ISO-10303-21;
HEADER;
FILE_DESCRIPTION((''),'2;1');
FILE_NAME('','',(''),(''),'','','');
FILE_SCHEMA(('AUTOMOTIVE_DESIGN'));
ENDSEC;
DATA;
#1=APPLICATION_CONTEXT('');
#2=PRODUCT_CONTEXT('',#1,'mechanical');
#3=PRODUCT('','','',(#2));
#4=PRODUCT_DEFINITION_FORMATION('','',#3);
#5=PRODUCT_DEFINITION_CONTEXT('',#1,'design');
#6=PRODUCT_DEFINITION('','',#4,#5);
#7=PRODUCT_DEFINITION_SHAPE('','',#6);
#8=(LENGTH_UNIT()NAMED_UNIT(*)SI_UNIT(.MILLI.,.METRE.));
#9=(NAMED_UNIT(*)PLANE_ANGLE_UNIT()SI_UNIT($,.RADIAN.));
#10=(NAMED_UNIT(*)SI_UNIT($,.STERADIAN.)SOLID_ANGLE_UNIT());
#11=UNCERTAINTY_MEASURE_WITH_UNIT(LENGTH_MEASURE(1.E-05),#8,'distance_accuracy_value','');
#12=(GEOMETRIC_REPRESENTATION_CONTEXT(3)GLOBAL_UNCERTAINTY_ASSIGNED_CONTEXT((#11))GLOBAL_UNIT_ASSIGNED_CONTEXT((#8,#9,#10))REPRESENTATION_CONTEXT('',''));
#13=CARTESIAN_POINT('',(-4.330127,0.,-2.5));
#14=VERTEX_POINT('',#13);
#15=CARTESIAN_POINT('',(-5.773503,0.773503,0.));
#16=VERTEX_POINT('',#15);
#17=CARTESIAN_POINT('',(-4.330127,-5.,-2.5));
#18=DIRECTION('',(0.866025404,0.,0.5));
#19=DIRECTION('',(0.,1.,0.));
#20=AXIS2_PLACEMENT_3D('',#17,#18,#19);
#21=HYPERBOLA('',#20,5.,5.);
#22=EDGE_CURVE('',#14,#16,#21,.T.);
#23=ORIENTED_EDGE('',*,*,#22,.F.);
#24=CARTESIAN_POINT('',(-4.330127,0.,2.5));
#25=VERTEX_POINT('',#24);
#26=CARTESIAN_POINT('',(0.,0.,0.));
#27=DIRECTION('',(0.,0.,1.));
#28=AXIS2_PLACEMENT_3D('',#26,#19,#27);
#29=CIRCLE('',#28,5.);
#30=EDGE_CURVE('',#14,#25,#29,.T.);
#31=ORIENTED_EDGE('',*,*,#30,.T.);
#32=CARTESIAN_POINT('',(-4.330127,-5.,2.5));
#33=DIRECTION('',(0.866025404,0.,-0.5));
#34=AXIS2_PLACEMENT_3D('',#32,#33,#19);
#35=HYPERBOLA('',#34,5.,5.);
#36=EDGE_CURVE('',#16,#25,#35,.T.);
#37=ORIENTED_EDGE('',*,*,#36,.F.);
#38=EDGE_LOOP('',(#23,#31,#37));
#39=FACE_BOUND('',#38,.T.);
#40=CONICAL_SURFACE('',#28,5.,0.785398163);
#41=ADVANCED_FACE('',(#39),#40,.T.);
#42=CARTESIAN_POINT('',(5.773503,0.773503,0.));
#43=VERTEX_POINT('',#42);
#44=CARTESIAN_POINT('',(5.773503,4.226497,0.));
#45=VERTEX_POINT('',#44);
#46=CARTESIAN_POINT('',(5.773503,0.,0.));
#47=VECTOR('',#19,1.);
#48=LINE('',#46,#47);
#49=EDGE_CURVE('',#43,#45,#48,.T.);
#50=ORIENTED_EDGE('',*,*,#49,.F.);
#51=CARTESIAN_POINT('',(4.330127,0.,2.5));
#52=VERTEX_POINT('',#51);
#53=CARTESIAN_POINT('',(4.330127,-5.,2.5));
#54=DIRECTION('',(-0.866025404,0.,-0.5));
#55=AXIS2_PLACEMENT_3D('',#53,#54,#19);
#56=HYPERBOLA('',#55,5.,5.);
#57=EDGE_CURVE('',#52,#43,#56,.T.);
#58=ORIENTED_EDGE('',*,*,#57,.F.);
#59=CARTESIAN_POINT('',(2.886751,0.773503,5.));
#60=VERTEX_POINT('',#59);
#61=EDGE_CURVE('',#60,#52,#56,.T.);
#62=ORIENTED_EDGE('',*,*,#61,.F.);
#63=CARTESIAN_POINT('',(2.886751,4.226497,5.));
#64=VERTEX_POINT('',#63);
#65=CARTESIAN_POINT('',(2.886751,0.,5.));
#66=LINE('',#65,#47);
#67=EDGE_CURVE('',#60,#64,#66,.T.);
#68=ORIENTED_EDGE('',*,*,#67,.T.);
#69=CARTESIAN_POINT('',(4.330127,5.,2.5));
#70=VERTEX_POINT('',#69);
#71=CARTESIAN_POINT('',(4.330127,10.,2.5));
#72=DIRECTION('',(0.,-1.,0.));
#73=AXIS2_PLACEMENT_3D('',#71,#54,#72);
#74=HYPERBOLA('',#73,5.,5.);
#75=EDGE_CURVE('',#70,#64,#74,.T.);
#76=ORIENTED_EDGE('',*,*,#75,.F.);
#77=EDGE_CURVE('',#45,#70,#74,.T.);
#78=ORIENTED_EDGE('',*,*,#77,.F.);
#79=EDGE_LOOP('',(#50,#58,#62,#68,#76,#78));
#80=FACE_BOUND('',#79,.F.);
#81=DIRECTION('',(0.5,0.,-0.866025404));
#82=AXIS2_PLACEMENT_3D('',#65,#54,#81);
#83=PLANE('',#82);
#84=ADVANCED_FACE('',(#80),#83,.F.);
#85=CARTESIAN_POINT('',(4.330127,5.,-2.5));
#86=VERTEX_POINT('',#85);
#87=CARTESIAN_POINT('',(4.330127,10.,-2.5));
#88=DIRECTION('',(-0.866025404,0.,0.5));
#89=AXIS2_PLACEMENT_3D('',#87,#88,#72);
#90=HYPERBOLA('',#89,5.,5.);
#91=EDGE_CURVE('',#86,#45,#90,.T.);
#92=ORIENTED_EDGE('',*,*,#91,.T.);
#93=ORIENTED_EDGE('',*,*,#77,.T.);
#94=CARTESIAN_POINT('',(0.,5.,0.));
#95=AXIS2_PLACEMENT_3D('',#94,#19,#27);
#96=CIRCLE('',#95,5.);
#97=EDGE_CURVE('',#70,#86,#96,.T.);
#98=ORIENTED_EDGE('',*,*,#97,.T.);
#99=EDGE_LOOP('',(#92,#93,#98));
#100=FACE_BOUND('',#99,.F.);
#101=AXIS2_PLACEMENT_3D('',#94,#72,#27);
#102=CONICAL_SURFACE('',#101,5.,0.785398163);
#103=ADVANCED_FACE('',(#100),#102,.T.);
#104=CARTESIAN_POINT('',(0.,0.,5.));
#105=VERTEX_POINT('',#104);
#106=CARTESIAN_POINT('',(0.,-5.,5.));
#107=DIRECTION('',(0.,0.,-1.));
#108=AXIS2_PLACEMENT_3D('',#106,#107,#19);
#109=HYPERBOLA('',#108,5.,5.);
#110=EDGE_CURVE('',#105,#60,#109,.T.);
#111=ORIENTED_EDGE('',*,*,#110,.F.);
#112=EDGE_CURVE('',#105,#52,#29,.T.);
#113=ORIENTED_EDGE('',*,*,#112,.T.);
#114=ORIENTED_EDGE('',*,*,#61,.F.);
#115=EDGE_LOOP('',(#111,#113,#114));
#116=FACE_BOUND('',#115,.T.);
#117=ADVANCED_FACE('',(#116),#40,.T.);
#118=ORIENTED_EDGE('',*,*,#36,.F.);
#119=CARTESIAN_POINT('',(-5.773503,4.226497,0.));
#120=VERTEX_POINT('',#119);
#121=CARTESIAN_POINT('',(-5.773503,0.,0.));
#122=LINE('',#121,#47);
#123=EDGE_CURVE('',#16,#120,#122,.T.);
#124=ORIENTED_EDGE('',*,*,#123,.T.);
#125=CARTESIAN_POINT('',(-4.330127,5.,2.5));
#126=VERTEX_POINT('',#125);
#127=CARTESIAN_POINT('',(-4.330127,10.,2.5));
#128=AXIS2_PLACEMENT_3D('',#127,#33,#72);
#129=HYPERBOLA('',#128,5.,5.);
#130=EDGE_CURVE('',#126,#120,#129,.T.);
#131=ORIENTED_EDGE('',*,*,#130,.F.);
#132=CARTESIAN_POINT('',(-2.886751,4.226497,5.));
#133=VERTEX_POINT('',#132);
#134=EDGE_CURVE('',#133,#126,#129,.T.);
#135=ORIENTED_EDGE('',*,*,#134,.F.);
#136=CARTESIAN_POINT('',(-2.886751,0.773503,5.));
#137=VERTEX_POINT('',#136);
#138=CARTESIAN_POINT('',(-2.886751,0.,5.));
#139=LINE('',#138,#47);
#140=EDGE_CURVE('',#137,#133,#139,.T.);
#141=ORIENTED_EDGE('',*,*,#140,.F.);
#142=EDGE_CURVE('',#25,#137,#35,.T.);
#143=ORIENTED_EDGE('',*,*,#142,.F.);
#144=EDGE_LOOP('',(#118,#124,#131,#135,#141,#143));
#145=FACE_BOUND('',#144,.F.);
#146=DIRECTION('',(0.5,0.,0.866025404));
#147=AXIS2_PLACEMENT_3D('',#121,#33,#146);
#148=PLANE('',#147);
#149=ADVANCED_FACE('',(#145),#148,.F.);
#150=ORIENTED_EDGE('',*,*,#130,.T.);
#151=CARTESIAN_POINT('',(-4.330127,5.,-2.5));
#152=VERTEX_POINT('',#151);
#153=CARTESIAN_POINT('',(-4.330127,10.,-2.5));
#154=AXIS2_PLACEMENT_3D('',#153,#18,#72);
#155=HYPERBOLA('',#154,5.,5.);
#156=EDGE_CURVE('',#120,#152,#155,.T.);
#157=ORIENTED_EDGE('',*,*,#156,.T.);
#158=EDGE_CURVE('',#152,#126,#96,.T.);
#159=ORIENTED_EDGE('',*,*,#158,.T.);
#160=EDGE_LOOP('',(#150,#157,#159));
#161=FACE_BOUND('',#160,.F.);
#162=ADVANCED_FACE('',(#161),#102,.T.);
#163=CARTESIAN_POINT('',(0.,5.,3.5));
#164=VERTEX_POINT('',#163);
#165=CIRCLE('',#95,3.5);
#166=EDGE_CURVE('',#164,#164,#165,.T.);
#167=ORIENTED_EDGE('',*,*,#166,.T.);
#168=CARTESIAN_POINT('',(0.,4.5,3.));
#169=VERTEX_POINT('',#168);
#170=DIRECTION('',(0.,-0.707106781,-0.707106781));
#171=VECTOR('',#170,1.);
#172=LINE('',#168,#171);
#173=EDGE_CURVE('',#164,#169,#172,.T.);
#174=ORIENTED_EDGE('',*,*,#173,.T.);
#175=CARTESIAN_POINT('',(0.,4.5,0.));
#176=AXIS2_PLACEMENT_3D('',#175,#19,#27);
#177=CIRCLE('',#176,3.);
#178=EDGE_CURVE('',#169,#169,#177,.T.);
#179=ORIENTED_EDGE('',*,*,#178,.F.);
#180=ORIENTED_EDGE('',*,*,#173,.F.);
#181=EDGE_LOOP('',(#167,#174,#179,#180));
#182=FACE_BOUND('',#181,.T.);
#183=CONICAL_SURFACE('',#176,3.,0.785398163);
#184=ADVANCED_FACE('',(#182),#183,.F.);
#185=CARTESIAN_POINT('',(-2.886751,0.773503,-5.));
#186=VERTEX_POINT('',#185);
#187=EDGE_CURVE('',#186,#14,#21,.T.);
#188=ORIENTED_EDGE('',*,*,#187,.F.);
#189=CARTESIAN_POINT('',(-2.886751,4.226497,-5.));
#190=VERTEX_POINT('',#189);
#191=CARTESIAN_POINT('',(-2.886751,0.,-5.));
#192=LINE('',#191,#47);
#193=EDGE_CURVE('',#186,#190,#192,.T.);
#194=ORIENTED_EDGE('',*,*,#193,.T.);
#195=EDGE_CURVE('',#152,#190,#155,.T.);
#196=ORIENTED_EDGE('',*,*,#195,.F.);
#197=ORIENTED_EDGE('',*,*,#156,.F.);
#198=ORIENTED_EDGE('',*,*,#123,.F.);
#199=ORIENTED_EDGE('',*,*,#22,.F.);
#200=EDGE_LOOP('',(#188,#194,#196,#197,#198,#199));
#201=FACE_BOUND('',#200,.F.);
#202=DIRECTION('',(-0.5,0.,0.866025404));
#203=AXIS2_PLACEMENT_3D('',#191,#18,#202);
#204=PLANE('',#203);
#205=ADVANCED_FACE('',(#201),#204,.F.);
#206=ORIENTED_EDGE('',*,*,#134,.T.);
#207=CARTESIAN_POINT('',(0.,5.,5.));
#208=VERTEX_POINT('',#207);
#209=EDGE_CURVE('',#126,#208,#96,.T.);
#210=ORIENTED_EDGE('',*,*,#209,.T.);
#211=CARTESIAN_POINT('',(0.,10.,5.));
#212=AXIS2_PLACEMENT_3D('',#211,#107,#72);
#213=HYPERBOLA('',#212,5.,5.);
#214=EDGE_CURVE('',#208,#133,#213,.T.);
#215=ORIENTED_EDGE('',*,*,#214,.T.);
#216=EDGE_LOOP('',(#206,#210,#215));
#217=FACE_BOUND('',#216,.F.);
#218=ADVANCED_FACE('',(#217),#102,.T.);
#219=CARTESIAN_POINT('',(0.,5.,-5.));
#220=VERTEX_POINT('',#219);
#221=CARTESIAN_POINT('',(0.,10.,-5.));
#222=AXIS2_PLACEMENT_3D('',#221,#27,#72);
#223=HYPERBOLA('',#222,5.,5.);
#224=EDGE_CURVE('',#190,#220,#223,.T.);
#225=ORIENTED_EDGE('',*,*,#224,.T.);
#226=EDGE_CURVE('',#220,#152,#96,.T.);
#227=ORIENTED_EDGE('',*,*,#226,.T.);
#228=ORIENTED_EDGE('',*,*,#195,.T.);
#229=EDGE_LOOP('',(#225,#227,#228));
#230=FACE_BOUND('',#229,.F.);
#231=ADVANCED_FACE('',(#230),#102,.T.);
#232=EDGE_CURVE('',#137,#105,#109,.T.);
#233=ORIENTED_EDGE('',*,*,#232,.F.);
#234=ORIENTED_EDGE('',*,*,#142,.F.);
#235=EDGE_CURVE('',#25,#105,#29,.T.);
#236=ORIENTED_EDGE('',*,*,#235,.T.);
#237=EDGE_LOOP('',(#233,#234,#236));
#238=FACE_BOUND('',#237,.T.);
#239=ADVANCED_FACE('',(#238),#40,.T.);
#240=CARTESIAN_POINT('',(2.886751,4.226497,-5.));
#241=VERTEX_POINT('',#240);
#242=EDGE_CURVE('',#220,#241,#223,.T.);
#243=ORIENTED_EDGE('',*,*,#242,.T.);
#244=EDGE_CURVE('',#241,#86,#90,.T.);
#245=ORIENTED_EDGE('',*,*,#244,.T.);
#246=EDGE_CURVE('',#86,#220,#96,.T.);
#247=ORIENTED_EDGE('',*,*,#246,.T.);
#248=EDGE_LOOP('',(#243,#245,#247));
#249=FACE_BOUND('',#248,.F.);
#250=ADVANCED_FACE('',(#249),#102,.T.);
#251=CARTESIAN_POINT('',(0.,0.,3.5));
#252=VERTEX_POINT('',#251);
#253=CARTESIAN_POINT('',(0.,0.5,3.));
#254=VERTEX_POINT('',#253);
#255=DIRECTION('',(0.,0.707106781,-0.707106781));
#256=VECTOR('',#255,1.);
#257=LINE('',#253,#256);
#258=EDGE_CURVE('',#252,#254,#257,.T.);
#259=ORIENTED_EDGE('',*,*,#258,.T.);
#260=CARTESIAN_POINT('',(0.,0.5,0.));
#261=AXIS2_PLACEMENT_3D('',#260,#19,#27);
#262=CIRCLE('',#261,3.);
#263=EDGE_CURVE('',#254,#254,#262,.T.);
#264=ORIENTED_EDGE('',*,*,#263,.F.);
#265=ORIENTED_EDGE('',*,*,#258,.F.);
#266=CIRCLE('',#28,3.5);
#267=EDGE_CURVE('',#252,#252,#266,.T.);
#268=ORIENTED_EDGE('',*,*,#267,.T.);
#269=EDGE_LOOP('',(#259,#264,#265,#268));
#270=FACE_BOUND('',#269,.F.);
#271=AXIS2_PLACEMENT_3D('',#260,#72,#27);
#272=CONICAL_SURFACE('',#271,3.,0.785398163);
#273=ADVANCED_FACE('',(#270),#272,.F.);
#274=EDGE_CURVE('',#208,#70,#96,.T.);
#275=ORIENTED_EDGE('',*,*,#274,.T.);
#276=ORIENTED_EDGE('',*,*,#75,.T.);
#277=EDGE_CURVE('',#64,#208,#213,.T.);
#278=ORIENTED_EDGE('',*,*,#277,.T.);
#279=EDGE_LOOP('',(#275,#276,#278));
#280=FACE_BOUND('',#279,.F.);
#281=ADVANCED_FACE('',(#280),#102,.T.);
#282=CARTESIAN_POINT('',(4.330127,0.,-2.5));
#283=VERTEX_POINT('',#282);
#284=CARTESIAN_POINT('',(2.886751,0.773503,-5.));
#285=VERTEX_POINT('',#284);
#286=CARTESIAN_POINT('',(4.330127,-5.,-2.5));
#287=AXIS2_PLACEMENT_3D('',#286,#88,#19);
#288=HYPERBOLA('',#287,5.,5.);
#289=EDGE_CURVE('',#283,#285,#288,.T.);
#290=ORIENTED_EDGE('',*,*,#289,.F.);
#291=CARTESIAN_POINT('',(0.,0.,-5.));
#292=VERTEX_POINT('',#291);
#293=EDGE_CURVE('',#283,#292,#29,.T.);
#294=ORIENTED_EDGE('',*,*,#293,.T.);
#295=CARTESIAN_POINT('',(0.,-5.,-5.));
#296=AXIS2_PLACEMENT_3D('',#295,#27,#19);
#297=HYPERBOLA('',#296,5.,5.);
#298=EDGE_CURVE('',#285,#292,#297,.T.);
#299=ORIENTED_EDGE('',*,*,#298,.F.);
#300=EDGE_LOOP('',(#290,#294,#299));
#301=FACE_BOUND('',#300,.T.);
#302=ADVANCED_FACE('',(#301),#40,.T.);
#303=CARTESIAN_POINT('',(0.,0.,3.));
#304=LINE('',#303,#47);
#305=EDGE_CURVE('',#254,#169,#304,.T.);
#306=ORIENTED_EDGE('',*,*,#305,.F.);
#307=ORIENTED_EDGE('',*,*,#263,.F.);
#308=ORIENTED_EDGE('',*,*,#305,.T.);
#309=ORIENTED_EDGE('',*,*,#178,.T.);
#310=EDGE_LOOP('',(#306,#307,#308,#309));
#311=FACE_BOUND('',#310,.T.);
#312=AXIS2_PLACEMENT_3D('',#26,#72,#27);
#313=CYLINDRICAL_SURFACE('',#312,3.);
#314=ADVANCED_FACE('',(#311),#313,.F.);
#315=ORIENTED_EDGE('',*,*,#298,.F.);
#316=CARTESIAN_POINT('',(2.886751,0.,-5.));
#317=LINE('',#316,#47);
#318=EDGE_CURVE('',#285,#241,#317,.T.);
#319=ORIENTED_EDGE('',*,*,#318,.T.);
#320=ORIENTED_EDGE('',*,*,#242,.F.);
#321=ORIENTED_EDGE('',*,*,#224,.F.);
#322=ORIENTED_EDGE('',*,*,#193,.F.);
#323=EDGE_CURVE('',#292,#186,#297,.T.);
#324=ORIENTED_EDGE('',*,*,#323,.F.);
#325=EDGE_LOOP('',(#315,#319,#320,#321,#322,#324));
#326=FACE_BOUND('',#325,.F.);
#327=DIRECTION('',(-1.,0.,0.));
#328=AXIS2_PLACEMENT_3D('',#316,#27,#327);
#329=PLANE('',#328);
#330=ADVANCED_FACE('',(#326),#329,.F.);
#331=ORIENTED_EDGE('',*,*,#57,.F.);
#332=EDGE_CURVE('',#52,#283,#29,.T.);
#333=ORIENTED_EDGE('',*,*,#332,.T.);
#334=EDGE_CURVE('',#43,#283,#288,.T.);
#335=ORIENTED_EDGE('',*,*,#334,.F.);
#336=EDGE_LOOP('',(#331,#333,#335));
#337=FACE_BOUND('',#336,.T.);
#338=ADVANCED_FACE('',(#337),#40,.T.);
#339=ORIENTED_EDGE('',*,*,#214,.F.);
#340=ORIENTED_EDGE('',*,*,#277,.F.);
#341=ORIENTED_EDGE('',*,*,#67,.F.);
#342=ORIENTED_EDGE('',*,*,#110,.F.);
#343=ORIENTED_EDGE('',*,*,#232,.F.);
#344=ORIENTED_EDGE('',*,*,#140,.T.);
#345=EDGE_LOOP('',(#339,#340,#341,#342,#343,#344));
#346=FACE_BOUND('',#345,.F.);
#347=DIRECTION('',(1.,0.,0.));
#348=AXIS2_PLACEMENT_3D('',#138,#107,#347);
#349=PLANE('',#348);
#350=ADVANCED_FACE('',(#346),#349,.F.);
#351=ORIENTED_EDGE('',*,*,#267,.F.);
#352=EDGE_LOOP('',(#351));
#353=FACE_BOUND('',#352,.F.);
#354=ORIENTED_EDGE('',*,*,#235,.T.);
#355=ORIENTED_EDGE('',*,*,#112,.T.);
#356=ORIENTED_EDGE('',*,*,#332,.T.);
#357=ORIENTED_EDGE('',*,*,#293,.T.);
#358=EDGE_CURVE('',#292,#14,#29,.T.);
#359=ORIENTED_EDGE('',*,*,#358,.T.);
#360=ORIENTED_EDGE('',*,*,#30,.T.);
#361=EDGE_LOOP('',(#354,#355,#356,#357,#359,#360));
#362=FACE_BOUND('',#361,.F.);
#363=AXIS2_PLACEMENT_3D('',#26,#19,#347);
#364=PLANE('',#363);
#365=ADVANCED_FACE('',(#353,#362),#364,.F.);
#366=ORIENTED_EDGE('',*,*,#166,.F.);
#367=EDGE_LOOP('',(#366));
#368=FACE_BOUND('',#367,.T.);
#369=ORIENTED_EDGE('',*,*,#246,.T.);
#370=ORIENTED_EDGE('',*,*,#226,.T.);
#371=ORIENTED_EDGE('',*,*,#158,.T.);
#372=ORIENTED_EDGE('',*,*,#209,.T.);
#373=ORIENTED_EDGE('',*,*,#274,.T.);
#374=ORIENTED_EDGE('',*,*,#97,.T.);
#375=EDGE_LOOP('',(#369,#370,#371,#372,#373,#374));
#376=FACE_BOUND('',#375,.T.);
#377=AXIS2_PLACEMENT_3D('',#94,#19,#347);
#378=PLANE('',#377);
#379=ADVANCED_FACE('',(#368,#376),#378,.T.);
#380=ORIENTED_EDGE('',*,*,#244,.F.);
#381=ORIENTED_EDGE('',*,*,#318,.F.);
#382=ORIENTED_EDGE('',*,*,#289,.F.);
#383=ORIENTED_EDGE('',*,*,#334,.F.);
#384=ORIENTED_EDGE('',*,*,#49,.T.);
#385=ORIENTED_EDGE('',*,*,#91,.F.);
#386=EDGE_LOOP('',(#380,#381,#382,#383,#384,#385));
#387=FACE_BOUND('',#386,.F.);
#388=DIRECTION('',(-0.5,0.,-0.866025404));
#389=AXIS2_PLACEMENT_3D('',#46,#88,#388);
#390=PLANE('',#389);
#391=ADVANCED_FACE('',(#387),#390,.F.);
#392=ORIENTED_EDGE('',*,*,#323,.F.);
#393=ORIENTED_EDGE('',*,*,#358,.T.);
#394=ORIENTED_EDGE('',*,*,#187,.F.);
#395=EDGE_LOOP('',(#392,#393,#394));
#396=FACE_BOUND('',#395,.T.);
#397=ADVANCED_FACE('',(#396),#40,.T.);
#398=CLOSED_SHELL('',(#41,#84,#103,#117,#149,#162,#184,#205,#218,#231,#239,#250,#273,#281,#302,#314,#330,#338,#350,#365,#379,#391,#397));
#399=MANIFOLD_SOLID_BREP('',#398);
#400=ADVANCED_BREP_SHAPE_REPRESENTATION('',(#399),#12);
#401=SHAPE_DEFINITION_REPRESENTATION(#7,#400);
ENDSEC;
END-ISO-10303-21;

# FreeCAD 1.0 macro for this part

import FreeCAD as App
import Part
import Sketcher
from FreeCAD import Vector
Q = App.Units.Quantity


def edges_at(feature, points):
    """Names of the edges that pass closest to the given points."""
    edges = feature.Shape.Edges
    near = lambda p: min(range(len(edges)), key=lambda i: edges[i].distToShape(Part.Vertex(*p))[0])
    return sorted({f"Edge{near(p) + 1}" for p in points})


def add_polygon(sketch, points):
    """Adds a closed chain of lines whose ends are joined by coincident constraints."""
    first, n = sketch.GeometryCount, len(points)
    for a, b in zip(points, points[1:] + points[:1]):
        sketch.addGeometry(Part.LineSegment(App.Vector(*a, 0), App.Vector(*b, 0)), False)
    for i in range(n):
        sketch.addConstraint(Sketcher.Constraint("Coincident", first + i, 2, first + (i + 1) % n, 1))

doc = App.newDocument("Part")
body = doc.addObject("PartDesign::Body", "Body")

sketch1 = doc.addObject("Sketcher::SketchObject", "Sketch")
body.addObject(sketch1)
sketch1.AttachmentSupport = (doc.XZ_Plane, [""])
sketch1.MapMode = "FlatFace"
add_polygon(sketch1, [(5.8, 0), (2.9, -5), (-2.9, -5), (-5.8, 0), (-2.9, 5), (2.9, 5)])
sketch1.addGeometry(Part.Circle(Vector(0, 0, 0), Vector(0, 0, 1), 3), False)
sketch1.addConstraint(Sketcher.Constraint("Horizontal", 1))
sketch1.addConstraint(Sketcher.Constraint("Horizontal", 4))
sketch1.addConstraint(Sketcher.Constraint("Coincident", 6, 3, -1, 1))
sketch1.addConstraint(Sketcher.Constraint("Symmetric", 0, 2, 3, 2, -1, 1))
sketch1.addConstraint(Sketcher.Constraint("Symmetric", 2, 2, 5, 2, -1, 1))
sketch1.addConstraint(Sketcher.Constraint("PointOnObject", 2, 2, -1))
sketch1.addConstraint(Sketcher.Constraint("Parallel", 2, 5))
sketch1.addConstraint(Sketcher.Constraint("Vertical", 1, 2, 3, 2))
sketch1.addConstraint(Sketcher.Constraint("Diameter", 6, 6.0))
sketch1.addConstraint(Sketcher.Constraint("Angle", 0, Q("-120 deg")))
sketch1.addConstraint(Sketcher.Constraint("DistanceY", 0, 2, -1, 1, 5.0))
sketch1.addConstraint(Sketcher.Constraint("DistanceX", 1, 2, 1, 1, 5.773503))
pad1 = doc.addObject("PartDesign::Pad", "Pad")
body.addObject(pad1)
pad1.Profile = sketch1
pad1.Length = 5
pad1.Reversed = True

sketch2 = doc.addObject("Sketcher::SketchObject", "Sketch001")
body.addObject(sketch2)
sketch2.AttachmentSupport = (doc.YZ_Plane, [""])
sketch2.MapMode = "FlatFace"
add_polygon(sketch2, [(0, 5), (1.5, 6.5), (0, 6.5)])
add_polygon(sketch2, [(5, 5), (5, 6.5), (3.5, 6.5)])
sketch2.addConstraint(Sketcher.Constraint("Horizontal", 1))
sketch2.addConstraint(Sketcher.Constraint("Vertical", 2))
sketch2.addConstraint(Sketcher.Constraint("Vertical", 3))
sketch2.addConstraint(Sketcher.Constraint("Horizontal", 4))
sketch2.addConstraint(Sketcher.Constraint("PointOnObject", 1, 2, -2))
sketch2.addConstraint(Sketcher.Constraint("Perpendicular", 0, 5))
sketch2.addConstraint(Sketcher.Constraint("Horizontal", 1, 2, 3, 2))
sketch2.addConstraint(Sketcher.Constraint("Horizontal", 2, 2, 5, 2))
sketch2.addConstraint(Sketcher.Constraint("Equal", 1, 4))
sketch2.addConstraint(Sketcher.Constraint("DistanceX", 1, 2, 1, 1, 1.5))
sketch2.addConstraint(Sketcher.Constraint("DistanceY", -1, 1, 2, 2, 5.0))
sketch2.addConstraint(Sketcher.Constraint("DistanceX", -1, 1, 3, 2, 5.0))
groove = doc.addObject("PartDesign::Groove", "Groove")
body.addObject(groove)
groove.Profile = sketch2
groove.ReferenceAxis = (sketch2, ["H_Axis"])
groove.Angle = 360
doc.recompute()

chamfer = doc.addObject("PartDesign::Chamfer", "Chamfer")
body.addObject(chamfer)
chamfer.Base = (groove, edges_at(groove, [(0, 0, -3), (0, 5, -3)]))
chamfer.Size = 0.5

doc.recompute()
